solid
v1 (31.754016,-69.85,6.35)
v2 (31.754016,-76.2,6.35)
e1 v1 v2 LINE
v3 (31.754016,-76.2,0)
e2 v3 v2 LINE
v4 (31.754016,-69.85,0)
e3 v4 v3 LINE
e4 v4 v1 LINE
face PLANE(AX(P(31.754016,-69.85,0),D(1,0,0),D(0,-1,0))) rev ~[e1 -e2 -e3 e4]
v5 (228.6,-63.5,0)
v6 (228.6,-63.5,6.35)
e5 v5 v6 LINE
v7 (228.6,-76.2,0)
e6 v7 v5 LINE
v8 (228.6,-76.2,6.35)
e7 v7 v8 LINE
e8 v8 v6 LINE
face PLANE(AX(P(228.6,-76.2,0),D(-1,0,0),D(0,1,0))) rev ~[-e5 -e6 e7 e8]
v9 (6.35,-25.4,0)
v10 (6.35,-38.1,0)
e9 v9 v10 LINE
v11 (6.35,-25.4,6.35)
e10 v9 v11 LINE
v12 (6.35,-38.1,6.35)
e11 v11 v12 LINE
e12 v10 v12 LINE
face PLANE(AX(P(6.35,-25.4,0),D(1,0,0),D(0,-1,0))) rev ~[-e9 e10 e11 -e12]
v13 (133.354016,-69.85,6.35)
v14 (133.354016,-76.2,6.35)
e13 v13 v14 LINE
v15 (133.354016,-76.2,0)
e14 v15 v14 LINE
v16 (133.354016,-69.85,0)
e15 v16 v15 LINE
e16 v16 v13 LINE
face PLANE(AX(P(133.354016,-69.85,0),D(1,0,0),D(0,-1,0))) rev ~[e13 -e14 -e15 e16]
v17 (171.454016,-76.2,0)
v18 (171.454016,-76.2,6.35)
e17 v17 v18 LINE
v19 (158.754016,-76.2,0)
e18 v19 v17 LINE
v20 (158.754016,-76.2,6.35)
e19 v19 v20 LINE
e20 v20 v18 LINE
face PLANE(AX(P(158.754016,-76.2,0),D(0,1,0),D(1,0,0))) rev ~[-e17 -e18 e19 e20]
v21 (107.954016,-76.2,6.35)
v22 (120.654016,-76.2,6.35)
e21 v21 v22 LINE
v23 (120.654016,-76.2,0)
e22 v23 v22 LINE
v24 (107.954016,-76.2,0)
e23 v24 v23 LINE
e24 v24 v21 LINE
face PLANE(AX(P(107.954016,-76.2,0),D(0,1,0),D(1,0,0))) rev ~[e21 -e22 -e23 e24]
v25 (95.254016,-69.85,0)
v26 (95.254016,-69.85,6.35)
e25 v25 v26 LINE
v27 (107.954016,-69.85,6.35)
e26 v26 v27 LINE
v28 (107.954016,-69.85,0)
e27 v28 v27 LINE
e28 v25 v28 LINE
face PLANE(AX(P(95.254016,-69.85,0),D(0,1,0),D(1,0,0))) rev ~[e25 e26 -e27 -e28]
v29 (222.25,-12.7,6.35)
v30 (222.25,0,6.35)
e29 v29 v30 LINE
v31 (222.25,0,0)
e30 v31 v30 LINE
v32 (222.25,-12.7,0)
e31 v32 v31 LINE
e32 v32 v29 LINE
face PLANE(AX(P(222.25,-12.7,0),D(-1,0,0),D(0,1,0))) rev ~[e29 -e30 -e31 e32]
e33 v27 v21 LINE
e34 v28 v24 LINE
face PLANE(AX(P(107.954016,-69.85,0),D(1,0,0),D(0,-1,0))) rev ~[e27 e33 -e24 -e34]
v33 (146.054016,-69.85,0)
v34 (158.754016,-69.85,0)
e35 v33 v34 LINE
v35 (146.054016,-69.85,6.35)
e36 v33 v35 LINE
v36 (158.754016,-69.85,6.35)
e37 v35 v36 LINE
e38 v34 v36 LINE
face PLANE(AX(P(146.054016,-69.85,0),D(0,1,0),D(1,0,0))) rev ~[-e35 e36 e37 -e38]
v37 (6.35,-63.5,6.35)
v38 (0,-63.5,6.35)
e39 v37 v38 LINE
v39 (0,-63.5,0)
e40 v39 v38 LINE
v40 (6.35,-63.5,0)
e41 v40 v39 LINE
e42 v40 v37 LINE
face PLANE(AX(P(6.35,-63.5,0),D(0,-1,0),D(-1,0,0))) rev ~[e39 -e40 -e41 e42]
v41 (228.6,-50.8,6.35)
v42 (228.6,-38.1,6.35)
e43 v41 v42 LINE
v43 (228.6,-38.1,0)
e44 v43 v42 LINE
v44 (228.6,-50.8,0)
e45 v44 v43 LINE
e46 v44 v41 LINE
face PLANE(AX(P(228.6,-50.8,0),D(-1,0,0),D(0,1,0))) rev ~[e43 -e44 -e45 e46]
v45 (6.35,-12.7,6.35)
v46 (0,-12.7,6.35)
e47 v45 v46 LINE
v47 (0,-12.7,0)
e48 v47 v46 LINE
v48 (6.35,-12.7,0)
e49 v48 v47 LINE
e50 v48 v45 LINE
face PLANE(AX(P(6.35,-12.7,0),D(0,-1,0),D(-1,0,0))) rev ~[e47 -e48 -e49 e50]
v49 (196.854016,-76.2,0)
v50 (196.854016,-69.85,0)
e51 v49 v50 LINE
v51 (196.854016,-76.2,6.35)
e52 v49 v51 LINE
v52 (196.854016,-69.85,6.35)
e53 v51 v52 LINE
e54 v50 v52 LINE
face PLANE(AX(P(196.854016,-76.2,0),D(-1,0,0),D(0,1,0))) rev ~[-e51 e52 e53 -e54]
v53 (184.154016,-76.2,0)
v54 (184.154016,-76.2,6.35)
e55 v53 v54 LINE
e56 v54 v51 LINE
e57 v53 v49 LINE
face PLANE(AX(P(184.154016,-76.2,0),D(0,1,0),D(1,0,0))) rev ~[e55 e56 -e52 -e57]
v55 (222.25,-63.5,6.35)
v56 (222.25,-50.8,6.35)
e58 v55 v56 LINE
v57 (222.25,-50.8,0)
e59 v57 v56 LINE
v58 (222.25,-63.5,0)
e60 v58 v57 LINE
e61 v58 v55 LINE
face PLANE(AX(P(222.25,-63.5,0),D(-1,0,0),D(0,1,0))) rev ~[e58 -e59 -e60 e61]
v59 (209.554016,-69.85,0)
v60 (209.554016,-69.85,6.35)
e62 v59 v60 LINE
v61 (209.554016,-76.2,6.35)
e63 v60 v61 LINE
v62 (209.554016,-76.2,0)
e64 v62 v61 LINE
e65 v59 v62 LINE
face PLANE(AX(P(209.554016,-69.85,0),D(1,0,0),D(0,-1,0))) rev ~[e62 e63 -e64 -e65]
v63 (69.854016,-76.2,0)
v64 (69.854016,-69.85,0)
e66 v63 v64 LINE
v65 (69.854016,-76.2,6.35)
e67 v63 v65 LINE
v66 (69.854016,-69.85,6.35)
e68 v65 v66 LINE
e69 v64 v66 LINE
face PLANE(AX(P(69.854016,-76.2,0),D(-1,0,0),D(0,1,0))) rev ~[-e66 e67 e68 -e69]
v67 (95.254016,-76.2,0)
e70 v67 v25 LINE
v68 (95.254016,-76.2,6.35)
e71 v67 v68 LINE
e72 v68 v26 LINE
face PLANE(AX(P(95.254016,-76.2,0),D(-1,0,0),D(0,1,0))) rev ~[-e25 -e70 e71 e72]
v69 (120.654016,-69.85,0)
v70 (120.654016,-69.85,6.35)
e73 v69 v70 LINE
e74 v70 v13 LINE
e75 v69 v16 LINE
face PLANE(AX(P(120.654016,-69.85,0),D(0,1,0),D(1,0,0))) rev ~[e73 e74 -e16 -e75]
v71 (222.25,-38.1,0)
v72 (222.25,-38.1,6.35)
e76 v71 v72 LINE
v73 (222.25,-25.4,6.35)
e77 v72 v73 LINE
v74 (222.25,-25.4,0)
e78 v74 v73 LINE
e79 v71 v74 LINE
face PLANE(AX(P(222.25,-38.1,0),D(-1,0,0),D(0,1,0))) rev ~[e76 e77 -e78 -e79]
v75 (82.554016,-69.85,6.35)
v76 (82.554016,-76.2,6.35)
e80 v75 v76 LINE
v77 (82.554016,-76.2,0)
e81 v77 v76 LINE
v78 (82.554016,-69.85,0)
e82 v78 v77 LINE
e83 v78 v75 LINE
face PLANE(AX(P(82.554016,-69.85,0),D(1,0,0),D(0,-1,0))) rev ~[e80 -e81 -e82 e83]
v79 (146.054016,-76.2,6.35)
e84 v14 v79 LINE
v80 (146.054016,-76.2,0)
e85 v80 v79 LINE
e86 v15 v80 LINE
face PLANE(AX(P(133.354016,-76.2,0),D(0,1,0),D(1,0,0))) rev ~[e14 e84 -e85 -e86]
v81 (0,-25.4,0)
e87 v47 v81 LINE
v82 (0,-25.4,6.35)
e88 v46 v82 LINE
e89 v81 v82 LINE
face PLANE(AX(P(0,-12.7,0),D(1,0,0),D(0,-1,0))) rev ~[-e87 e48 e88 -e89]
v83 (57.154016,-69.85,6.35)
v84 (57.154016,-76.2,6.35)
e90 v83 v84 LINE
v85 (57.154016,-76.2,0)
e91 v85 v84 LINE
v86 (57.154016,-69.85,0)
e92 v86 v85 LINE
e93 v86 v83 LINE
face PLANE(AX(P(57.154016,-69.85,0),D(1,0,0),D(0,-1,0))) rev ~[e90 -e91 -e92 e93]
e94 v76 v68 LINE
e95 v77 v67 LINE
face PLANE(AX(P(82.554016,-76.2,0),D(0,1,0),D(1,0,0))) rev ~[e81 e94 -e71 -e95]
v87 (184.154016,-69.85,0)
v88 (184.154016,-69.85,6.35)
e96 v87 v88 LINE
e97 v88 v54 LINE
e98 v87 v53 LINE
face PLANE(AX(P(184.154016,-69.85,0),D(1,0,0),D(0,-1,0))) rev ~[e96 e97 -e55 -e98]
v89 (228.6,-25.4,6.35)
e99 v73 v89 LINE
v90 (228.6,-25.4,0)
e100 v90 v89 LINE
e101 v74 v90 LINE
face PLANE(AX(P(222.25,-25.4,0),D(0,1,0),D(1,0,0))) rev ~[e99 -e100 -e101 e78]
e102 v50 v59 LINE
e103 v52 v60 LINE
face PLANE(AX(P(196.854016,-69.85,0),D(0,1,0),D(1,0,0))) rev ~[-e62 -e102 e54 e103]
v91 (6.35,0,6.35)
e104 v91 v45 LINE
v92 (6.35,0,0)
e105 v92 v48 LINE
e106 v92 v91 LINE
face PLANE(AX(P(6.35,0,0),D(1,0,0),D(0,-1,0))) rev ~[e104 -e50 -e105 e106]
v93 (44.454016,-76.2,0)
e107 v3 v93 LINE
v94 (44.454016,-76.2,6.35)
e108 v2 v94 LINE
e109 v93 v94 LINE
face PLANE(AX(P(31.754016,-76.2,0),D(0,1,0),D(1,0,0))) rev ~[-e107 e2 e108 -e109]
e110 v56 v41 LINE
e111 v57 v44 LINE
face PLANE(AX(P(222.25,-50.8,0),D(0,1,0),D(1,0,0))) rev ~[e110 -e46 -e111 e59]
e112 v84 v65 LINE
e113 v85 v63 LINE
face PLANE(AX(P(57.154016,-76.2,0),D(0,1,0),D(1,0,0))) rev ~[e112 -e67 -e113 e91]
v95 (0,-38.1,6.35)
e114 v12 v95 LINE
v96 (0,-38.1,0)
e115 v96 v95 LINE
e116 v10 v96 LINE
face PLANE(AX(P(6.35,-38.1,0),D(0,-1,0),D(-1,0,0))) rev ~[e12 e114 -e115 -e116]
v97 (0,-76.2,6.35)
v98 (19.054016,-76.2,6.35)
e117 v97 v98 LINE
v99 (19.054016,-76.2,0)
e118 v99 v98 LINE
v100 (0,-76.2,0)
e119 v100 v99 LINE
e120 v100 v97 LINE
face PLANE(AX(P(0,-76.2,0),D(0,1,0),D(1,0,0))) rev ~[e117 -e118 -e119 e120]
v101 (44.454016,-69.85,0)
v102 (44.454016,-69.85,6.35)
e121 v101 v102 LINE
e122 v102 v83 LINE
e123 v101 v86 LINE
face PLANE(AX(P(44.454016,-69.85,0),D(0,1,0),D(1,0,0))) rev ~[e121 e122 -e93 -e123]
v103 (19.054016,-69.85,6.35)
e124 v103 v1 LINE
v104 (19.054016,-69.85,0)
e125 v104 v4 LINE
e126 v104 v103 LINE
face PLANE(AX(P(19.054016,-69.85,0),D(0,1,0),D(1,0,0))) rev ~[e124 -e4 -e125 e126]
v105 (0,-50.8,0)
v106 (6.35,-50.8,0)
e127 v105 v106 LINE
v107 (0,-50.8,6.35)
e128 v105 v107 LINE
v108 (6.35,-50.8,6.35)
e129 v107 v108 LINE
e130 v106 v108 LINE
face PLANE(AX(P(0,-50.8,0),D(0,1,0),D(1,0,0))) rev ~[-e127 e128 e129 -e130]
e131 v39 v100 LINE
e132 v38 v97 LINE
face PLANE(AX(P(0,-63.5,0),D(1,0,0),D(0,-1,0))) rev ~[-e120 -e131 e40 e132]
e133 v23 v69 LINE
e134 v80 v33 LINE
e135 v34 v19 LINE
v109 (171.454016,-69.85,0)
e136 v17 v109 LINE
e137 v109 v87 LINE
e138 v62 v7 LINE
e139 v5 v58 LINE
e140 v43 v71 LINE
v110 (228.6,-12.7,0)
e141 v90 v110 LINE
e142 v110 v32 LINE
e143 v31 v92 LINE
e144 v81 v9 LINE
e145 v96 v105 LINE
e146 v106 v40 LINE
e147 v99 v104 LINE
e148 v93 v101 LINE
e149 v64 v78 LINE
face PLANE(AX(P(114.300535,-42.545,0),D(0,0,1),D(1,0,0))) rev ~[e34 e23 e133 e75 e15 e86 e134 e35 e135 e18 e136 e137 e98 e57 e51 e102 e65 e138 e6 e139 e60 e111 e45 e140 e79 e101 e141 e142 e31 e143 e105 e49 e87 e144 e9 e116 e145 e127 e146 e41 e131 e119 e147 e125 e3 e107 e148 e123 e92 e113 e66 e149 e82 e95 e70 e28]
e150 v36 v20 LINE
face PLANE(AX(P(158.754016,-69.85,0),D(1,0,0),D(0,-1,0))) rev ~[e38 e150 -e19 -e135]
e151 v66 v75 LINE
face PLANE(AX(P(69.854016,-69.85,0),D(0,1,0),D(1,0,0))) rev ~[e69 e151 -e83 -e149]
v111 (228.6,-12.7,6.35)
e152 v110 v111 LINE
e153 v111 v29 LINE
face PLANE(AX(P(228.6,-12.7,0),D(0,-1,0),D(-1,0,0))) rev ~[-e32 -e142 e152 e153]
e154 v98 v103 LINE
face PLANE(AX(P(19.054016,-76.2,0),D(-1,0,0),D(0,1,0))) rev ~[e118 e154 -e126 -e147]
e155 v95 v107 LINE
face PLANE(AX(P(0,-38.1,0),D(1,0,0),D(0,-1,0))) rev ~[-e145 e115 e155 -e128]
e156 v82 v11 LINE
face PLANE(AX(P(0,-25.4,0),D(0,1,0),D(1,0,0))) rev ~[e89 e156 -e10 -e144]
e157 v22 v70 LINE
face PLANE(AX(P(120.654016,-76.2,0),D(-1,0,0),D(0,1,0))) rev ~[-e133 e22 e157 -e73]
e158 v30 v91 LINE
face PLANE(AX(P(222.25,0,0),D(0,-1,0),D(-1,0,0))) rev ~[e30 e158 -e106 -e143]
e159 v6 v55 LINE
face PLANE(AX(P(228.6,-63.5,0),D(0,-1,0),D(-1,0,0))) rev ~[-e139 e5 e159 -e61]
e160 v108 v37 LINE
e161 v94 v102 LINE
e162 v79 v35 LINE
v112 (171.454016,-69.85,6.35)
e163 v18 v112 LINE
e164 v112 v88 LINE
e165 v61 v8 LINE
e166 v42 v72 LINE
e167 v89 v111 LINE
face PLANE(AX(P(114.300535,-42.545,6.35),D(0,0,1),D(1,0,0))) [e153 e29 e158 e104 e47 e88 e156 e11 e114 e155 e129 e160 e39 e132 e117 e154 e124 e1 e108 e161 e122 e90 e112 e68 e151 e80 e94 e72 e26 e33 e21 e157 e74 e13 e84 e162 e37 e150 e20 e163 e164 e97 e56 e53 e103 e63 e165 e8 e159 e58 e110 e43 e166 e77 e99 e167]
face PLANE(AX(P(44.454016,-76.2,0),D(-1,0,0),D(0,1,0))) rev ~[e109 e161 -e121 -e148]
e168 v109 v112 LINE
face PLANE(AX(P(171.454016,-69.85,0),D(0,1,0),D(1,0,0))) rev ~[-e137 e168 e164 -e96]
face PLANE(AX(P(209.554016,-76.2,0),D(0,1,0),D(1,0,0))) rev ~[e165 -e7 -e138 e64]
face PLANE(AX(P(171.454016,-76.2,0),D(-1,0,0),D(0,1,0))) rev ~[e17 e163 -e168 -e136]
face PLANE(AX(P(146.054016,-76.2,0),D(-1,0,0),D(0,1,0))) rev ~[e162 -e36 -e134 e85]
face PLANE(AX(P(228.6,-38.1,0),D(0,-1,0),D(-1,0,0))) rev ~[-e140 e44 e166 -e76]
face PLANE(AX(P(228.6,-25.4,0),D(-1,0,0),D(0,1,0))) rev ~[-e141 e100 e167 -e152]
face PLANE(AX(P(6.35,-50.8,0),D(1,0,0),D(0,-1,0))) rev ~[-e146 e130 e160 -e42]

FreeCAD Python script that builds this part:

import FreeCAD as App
import Part
import Sketcher
from FreeCAD import Vector
Q = App.Units.Quantity


def add_polygon(sketch, points):
    """Adds a closed chain of lines whose ends are joined by coincident constraints."""
    first, n = sketch.GeometryCount, len(points)
    for a, b in zip(points, points[1:] + points[:1]):
        sketch.addGeometry(Part.LineSegment(App.Vector(*a, 0), App.Vector(*b, 0)), False)
    for i in range(n):
        sketch.addConstraint(Sketcher.Constraint("Coincident", first + i, 2, first + (i + 1) % n, 1))

doc = App.newDocument("Part")
body = doc.addObject("PartDesign::Body", "Body")

sketch1 = doc.addObject("Sketcher::SketchObject", "Sketch")
body.addObject(sketch1)
sketch1.AttachmentSupport = (doc.XY_Plane, [""])
sketch1.MapMode = "FlatFace"
add_polygon(sketch1, [(222, 0), (6, 0), (6, -13), (0, -13), (0, -25), (6, -25), (6, -38), (0, -38), (0, -51), (6, -51), (6, -64), (0, -64), (0, -76), (19, -76), (19, -70), (32, -70), (32, -76), (44, -76), (44, -70), (57, -70), (57, -76), (70, -76), (70, -70), (83, -70), (83, -76), (95, -76), (95, -70), (108, -70), (108, -76), (121, -76), (121, -70), (133, -70), (133, -76), (146, -76), (146, -70), (159, -70), (159, -76), (171, -76), (171, -70), (184, -70), (184, -76), (197, -76), (197, -70), (210, -70), (210, -76), (229, -76), (229, -64), (222, -64), (222, -51), (229, -51), (229, -38), (222, -38), (222, -25), (229, -25), (229, -13), (222, -13)])
sketch1.addConstraint([
    Sketcher.Constraint("Horizontal", 0),
    Sketcher.Constraint("Vertical", 1),
    Sketcher.Constraint("Horizontal", 2),
    Sketcher.Constraint("Vertical", 3),
    Sketcher.Constraint("Horizontal", 4),
    Sketcher.Constraint("Vertical", 5),
    Sketcher.Constraint("Horizontal", 6),
    Sketcher.Constraint("Vertical", 7),
    Sketcher.Constraint("Horizontal", 8),
    Sketcher.Constraint("Vertical", 9),
    Sketcher.Constraint("Horizontal", 10),
    Sketcher.Constraint("Vertical", 11),
    Sketcher.Constraint("Horizontal", 12),
    Sketcher.Constraint("Vertical", 13),
    Sketcher.Constraint("Horizontal", 14),
    Sketcher.Constraint("Vertical", 15),
    Sketcher.Constraint("Horizontal", 16),
    Sketcher.Constraint("Vertical", 17),
    Sketcher.Constraint("Horizontal", 18),
    Sketcher.Constraint("Vertical", 19),
    Sketcher.Constraint("Horizontal", 20),
    Sketcher.Constraint("Vertical", 21),
    Sketcher.Constraint("Horizontal", 22),
    Sketcher.Constraint("Vertical", 23),
    Sketcher.Constraint("Horizontal", 24),
    Sketcher.Constraint("Vertical", 25),
    Sketcher.Constraint("Horizontal", 26),
    Sketcher.Constraint("Vertical", 27),
    Sketcher.Constraint("Horizontal", 28),
    Sketcher.Constraint("Vertical", 29),
    Sketcher.Constraint("Horizontal", 30),
    Sketcher.Constraint("Vertical", 31),
    Sketcher.Constraint("Horizontal", 32),
    Sketcher.Constraint("Vertical", 33),
    Sketcher.Constraint("Horizontal", 34),
    Sketcher.Constraint("Vertical", 35),
    Sketcher.Constraint("Horizontal", 36),
    Sketcher.Constraint("Vertical", 37),
    Sketcher.Constraint("Horizontal", 38),
    Sketcher.Constraint("Vertical", 39),
    Sketcher.Constraint("Horizontal", 40),
    Sketcher.Constraint("Vertical", 41),
    Sketcher.Constraint("Horizontal", 42),
    Sketcher.Constraint("Vertical", 43),
    Sketcher.Constraint("Horizontal", 44),
    Sketcher.Constraint("Vertical", 45),
    Sketcher.Constraint("Horizontal", 46),
    Sketcher.Constraint("Vertical", 47),
    Sketcher.Constraint("Horizontal", 48),
    Sketcher.Constraint("Vertical", 49),
    Sketcher.Constraint("Horizontal", 50),
    Sketcher.Constraint("Vertical", 51),
    Sketcher.Constraint("Horizontal", 52),
    Sketcher.Constraint("Vertical", 53),
    Sketcher.Constraint("Horizontal", 54),
    Sketcher.Constraint("Vertical", 55),
    Sketcher.Constraint("PointOnObject", 0, 2, -1),
    Sketcher.Constraint("PointOnObject", 2, 2, -2),
    Sketcher.Constraint("PointOnObject", 6, 2, -2),
    Sketcher.Constraint("PointOnObject", 10, 2, -2),
    Sketcher.Constraint("Horizontal", 12, 2, 15, 2),
    Sketcher.Constraint("Horizontal", 14, 2, 17, 2),
    Sketcher.Constraint("Horizontal", 16, 2, 19, 2),
    Sketcher.Constraint("Horizontal", 18, 2, 21, 2),
    Sketcher.Constraint("Horizontal", 20, 2, 23, 2),
    Sketcher.Constraint("Horizontal", 22, 2, 25, 2),
    Sketcher.Constraint("Horizontal", 24, 2, 27, 2),
    Sketcher.Constraint("Horizontal", 26, 2, 29, 2),
    Sketcher.Constraint("Horizontal", 28, 2, 31, 2),
    Sketcher.Constraint("Horizontal", 30, 2, 33, 2),
    Sketcher.Constraint("Horizontal", 32, 2, 35, 2),
    Sketcher.Constraint("Horizontal", 34, 2, 37, 2),
    Sketcher.Constraint("Horizontal", 36, 2, 39, 2),
    Sketcher.Constraint("Horizontal", 38, 2, 41, 2),
    Sketcher.Constraint("Horizontal", 40, 2, 43, 2),
    Sketcher.Constraint("Horizontal", 10, 2, 45, 2),
    Sketcher.Constraint("Horizontal", 8, 2, 47, 2),
    Sketcher.Constraint("Horizontal", 6, 2, 49, 2),
    Sketcher.Constraint("Horizontal", 4, 2, 51, 2),
    Sketcher.Constraint("Horizontal", 2, 2, 53, 2),
    Sketcher.Constraint("Vertical", 1, 2, 4, 2),
    Sketcher.Constraint("Vertical", 5, 2, 8, 2),
    Sketcher.Constraint("Vertical", 45, 2, 48, 2),
    Sketcher.Constraint("Vertical", 47, 2, 50, 2),
    Sketcher.Constraint("Vertical", 49, 2, 52, 2),
    Sketcher.Constraint("Vertical", 51, 2, 54, 2),
    Sketcher.Constraint("Equal", 14, 16),
    Sketcher.Constraint("Equal", 16, 18),
    Sketcher.Constraint("Equal", 18, 20),
    Sketcher.Constraint("Equal", 20, 22),
    Sketcher.Constraint("Equal", 22, 24),
    Sketcher.Constraint("Equal", 24, 26),
    Sketcher.Constraint("Equal", 26, 28),
    Sketcher.Constraint("Equal", 28, 30),
    Sketcher.Constraint("Equal", 30, 32),
    Sketcher.Constraint("Equal", 32, 34),
    Sketcher.Constraint("Equal", 34, 36),
    Sketcher.Constraint("Equal", 36, 38),
    Sketcher.Constraint("Equal", 38, 40),
    Sketcher.Constraint("Equal", 40, 42),
    Sketcher.Constraint("Equal", 10, 46),
    Sketcher.Constraint("Equal", 42, 1),
    Sketcher.Constraint("Equal", 1, 3),
    Sketcher.Constraint("Equal", 3, 5),
    Sketcher.Constraint("Equal", 5, 7),
    Sketcher.Constraint("Equal", 7, 9),
    Sketcher.Constraint("Equal", 9, 11),
    Sketcher.Constraint("Equal", 54, 13),
    Sketcher.Constraint("DistanceX", 0, 2, 0, 1, Q("8.5 in")),
    Sketcher.Constraint("DistanceX", 14, 1, 14, 2, Q("0.5 in")),
    Sketcher.Constraint("DistanceX", -1, 1, 44, 2, Q("9 in")),
    Sketcher.Constraint("DistanceX", 12, 1, 12, 2, 19.054016),
])
pad1 = doc.addObject("PartDesign::Pad", "Pad")
body.addObject(pad1)
pad1.Profile = sketch1
pad1.Length = Q("0.25 in")

doc.recompute()
